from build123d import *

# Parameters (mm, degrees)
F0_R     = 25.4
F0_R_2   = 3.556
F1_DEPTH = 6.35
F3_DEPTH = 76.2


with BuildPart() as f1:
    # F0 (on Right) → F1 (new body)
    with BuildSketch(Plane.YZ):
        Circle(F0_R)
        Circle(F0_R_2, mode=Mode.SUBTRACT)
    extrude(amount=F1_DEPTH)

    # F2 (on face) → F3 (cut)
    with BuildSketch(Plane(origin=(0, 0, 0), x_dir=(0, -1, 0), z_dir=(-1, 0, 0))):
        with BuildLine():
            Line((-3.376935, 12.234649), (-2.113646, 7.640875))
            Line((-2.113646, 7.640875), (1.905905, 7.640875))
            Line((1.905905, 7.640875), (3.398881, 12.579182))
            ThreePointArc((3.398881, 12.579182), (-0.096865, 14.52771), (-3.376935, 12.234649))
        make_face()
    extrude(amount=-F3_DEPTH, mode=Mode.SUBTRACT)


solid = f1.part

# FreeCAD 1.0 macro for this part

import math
import FreeCAD as App
import Part
import Sketcher
Q = App.Units.Quantity

doc = App.newDocument("Part")
params = doc.addObject("Spreadsheet::Sheet", "Params")
for row, (alias, value) in enumerate([
    ("sketch1_diameter", "2 in"),
    ("sketch1_diameter2", "0.28 in"),
    ("pad1_length", "0.25 in"),
    ("pocket1_length", "3 in"),
], start=1):
    params.set(f"A{row}", alias)
    params.set(f"B{row}", "=" + value)
    params.setAlias(f"B{row}", alias)

body = doc.addObject("PartDesign::Body", "Body")

sketch1 = body.newObject("Sketcher::SketchObject", "Sketch")
sketch1.AttachmentSupport = (doc.getObject("YZ_Plane"), [""])
sketch1.MapMode = "FlatFace"
sketch1.addGeometry([
    Part.Circle(App.Vector(0, 0, 0), App.Vector(0, 0, 1), 25.4),
    Part.Circle(App.Vector(0, 0, 0), App.Vector(0, 0, 1), 3.6),
], False)
sketch1.addConstraint([
    Sketcher.Constraint("Coincident", 0, 3, -1, 1),
    Sketcher.Constraint("Coincident", 1, 3, -1, 1),
    Sketcher.Constraint("Diameter", 0, Q("2 in")),
    Sketcher.Constraint("Diameter", 1, Q("0.28 in")),
])
sketch1.setExpression("Constraints[2]", "Params.sketch1_diameter")
sketch1.setExpression("Constraints[3]", "Params.sketch1_diameter2")
pad1 = body.newObject("PartDesign::Pad", "Pad")
pad1.Profile = sketch1
pad1.setExpression("Length", "Params.pad1_length")

sketch2 = body.newObject("Sketcher::SketchObject", "Sketch001")
sketch2.AttachmentSupport = (doc.getObject("YZ_Plane"), [""])
sketch2.MapMode = "FlatFace"
sketch2.addGeometry([
    Part.LineSegment(App.Vector(3.4, 12.2, 0), App.Vector(2.1, 7.6, 0)),
    Part.LineSegment(App.Vector(2.1, 7.6, 0), App.Vector(-1.9, 7.6, 0)),
    Part.LineSegment(App.Vector(-1.9, 7.6, 0), App.Vector(-3.4, 12.6, 0)),
    Part.ArcOfCircle(Part.Circle(App.Vector(-0.1, 10.8, 0), App.Vector(0, 0, 1), 3.8), math.radians(23), math.radians(151)),
], False)
sketch2.addConstraint([
    Sketcher.Constraint("Coincident", 0, 2, 1, 1),
    Sketcher.Constraint("Coincident", 1, 2, 2, 1),
    Sketcher.Constraint("Coincident", 2, 2, 3, 2),
    Sketcher.Constraint("Coincident", 3, 1, 0, 1),
    Sketcher.Constraint("Horizontal", 1),
    Sketcher.Constraint("Radius", 3, Q("3.771306 mm")),
    Sketcher.Constraint("DistanceX", 1, 2, 1, 1, Q("4.019551 mm")),
    Sketcher.Constraint("Distance", 0, Q("4.764311 mm")),
    Sketcher.Constraint("DistanceX", 3, 3, -1, 1, Q("0.09465 mm")),
    Sketcher.Constraint("DistanceY", -1, 1, 3, 3, Q("10.76127 mm")),
    Sketcher.Constraint("DistanceX", 2, 2, -1, 1, Q("3.398881 mm")),
    Sketcher.Constraint("DistanceY", -1, 1, 3, 1, Q("12.234649 mm")),
    Sketcher.Constraint("DistanceX", 0, 2, 3, 1, Q("1.263289 mm")),
])
pocket1 = body.newObject("PartDesign::Pocket", "Pocket")
pocket1.Profile = sketch2
pocket1.setExpression("Length", "Params.pocket1_length")
pocket1.Reversed = True

doc.recompute()
